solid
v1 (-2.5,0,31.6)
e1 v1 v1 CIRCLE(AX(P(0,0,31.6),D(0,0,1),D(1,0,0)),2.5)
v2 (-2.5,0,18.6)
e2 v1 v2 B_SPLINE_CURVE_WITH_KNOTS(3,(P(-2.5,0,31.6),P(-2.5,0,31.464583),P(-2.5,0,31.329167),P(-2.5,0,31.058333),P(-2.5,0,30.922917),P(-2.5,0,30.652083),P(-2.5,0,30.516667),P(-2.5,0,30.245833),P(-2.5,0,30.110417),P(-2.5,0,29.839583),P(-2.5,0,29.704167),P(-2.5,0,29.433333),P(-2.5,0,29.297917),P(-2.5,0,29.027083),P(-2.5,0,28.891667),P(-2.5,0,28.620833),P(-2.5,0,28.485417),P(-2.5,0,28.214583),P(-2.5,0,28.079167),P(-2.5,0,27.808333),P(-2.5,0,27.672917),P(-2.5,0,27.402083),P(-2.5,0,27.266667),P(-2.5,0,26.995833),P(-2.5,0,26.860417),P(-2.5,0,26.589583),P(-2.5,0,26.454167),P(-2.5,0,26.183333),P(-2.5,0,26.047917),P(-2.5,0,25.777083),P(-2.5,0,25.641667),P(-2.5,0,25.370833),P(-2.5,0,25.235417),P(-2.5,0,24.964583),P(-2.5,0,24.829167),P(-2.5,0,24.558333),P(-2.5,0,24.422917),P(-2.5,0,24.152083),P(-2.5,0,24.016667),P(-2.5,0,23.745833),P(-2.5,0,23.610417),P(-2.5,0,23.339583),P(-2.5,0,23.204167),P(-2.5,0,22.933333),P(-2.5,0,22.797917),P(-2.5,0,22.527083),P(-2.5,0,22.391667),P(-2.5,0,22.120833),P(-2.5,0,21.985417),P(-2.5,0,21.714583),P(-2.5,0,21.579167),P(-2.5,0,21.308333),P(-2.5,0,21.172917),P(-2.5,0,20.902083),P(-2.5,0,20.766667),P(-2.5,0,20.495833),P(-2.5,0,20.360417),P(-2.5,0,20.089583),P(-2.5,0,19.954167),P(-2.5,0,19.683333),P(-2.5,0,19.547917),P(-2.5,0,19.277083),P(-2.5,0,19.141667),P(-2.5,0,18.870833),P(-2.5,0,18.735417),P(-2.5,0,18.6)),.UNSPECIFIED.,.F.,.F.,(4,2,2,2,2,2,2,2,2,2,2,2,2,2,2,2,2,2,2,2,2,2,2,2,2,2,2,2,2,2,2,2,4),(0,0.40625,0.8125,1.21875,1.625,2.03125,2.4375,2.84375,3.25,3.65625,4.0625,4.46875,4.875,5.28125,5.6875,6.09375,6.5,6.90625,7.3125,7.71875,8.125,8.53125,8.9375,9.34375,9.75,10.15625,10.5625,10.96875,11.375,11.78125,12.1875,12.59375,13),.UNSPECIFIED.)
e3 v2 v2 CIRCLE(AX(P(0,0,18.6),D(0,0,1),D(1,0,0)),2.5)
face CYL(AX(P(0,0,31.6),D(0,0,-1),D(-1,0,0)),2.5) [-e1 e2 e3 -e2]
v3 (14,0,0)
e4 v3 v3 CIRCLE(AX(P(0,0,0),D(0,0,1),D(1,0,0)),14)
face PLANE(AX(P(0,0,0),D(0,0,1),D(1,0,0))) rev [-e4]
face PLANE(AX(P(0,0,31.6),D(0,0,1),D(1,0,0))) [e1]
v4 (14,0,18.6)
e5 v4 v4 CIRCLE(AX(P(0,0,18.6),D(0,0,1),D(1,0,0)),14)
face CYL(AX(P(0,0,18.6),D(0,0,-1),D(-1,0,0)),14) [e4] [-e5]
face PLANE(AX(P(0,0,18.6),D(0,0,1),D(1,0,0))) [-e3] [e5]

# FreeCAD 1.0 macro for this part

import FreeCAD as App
import Part
import Sketcher
from FreeCAD import Vector
Q = App.Units.Quantity

doc = App.newDocument("Part")
body = doc.addObject("PartDesign::Body", "Body")

# Sketch on XY plane
sketch1 = doc.addObject("Sketcher::SketchObject", "Sketch")
body.addObject(sketch1)
sketch1.AttachmentSupport = (doc.XY_Plane, [""])
sketch1.MapMode = "FlatFace"
sketch1.addGeometry(Part.Circle(Vector(0, 0, 0), Vector(0, 0, 1), 14), False)
sketch1.addConstraint(Sketcher.Constraint("Coincident", 0, 3, -1, 1))
sketch1.addConstraint(Sketcher.Constraint("Diameter", 0, Q("28 mm")))
pad1 = doc.addObject("PartDesign::Pad", "Pad")
body.addObject(pad1)
pad1.Profile = sketch1
pad1.Length = 18.6

# Sketch on XY plane
sketch2 = doc.addObject("Sketcher::SketchObject", "Sketch001")
body.addObject(sketch2)
sketch2.AttachmentSupport = (doc.XY_Plane, [""])
sketch2.MapMode = "FlatFace"
sketch2.AttachmentOffset = App.Placement(Vector(0, 0, 18.6), App.Rotation())
sketch2.addGeometry(Part.Circle(Vector(0, 0, 0), Vector(0, 0, 1), 2.5), False)
sketch2.addConstraint(Sketcher.Constraint("Coincident", 0, 3, -1, 1))
sketch2.addConstraint(Sketcher.Constraint("Diameter", 0, Q("5 mm")))
pad2 = doc.addObject("PartDesign::Pad", "Pad001")
body.addObject(pad2)
pad2.Profile = sketch2
pad2.Length = 13

doc.recompute()
